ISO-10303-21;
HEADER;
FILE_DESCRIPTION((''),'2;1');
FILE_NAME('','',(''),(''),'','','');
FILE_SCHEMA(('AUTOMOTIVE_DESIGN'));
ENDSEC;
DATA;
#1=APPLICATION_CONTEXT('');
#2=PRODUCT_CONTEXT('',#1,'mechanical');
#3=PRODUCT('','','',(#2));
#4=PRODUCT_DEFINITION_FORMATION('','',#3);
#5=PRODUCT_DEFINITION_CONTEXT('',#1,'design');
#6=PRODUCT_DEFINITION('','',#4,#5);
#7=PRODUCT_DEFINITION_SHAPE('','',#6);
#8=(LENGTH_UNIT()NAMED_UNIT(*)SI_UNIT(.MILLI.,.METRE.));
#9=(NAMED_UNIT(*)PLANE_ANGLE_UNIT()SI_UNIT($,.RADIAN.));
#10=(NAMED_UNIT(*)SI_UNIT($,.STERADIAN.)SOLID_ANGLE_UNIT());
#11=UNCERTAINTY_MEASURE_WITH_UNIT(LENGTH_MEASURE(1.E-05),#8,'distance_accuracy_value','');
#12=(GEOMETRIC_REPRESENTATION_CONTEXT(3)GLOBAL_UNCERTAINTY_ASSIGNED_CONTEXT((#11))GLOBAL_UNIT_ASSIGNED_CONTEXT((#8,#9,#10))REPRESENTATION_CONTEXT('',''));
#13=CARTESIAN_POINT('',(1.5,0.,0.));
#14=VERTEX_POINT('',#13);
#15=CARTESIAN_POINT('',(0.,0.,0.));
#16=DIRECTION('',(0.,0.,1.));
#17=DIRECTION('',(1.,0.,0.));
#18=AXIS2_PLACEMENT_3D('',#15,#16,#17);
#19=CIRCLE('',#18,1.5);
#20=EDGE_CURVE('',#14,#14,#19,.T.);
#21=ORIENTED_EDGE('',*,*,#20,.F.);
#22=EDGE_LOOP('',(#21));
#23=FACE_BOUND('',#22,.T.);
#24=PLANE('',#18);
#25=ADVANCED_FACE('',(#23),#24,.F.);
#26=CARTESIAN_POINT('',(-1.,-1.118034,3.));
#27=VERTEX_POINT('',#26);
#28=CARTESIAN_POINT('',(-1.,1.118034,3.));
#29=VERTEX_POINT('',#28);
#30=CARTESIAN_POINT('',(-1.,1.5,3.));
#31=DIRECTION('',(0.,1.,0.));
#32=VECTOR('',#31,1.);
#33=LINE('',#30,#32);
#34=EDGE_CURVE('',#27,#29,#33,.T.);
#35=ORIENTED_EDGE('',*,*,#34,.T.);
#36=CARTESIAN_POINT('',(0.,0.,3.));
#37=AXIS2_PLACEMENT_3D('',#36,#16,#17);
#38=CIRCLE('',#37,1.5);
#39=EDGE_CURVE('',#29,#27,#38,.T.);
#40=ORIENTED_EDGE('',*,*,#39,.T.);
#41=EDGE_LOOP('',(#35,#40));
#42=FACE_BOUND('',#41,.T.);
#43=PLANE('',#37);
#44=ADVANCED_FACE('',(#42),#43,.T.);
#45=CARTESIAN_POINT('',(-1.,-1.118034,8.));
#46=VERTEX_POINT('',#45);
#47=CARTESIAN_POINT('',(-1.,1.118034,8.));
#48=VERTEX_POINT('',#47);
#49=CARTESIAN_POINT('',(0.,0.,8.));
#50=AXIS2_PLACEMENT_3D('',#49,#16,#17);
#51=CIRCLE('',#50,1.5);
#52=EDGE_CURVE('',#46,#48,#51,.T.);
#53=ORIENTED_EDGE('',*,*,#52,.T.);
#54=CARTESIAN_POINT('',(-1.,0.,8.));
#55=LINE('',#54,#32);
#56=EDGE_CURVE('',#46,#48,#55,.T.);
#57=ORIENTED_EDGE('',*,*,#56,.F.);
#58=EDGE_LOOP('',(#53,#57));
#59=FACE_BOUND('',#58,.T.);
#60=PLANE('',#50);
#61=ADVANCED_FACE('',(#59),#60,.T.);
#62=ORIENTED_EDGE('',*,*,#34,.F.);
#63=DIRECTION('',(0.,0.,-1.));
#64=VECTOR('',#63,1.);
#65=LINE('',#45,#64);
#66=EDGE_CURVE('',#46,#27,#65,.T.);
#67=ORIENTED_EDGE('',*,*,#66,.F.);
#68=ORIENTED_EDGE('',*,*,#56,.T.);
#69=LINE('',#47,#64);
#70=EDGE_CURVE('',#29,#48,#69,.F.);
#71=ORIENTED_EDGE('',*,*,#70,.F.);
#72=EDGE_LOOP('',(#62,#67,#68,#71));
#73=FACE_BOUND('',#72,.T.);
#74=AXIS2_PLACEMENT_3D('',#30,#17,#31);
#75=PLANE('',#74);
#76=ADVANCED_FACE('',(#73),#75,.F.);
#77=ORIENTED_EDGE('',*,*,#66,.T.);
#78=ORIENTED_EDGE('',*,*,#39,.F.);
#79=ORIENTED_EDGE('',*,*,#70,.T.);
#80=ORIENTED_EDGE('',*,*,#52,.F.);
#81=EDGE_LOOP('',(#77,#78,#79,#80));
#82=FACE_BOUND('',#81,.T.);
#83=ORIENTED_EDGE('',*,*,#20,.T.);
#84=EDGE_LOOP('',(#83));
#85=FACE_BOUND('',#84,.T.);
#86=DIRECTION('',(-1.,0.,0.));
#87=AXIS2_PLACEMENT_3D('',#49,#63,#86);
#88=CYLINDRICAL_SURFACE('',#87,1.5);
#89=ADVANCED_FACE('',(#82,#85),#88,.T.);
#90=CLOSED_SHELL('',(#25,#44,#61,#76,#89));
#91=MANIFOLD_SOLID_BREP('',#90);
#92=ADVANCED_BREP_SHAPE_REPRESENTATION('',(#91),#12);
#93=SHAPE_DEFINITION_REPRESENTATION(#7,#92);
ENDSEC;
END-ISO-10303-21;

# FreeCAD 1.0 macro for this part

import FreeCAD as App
import Part
import Sketcher

V = App.Vector

doc = App.newDocument("Part")
body = doc.addObject("PartDesign::Body", "Body")

# Sketch on XY plane
sketch1 = body.newObject("Sketcher::SketchObject", "Sketch")
sketch1.AttachmentSupport = (doc.getObject("XY_Plane"), [""])
sketch1.MapMode = "FlatFace"
sketch1.addGeometry(Part.Circle(V(0, 0, 0), V(0, 0, 1), 1.5), False)
sketch1.addConstraint(Sketcher.Constraint("Coincident", 0, 3, -1, 1))
sketch1.addConstraint(Sketcher.Constraint("Diameter", 0, 3.0))
pad1 = body.newObject("PartDesign::Pad", "Pad")
pad1.Profile = sketch1
pad1.Length = 8

# Sketch on XY plane
sketch2 = body.newObject("Sketcher::SketchObject", "Sketch001")
sketch2.AttachmentSupport = (doc.getObject("XY_Plane"), [""])
sketch2.MapMode = "FlatFace"
sketch2.AttachmentOffset = App.Placement(V(0, 0, 8), App.Rotation())
sketch2.addGeometry(Part.LineSegment(V(-1.6, 1.5, 0), V(-1.6, -1.5, 0)), False)
sketch2.addGeometry(Part.LineSegment(V(-1.6, -1.5, 0), V(-1, -1.5, 0)), False)
sketch2.addGeometry(Part.LineSegment(V(-1, -1.5, 0), V(-1, 1.5, 0)), False)
sketch2.addGeometry(Part.LineSegment(V(-1, 1.5, 0), V(-1.6, 1.5, 0)), False)
sketch2.addConstraint(Sketcher.Constraint("Coincident", 0, 2, 1, 1))
sketch2.addConstraint(Sketcher.Constraint("Coincident", 1, 2, 2, 1))
sketch2.addConstraint(Sketcher.Constraint("Coincident", 2, 2, 3, 1))
sketch2.addConstraint(Sketcher.Constraint("Coincident", 3, 2, 0, 1))
sketch2.addConstraint(Sketcher.Constraint("Vertical", 0))
sketch2.addConstraint(Sketcher.Constraint("Horizontal", 1))
sketch2.addConstraint(Sketcher.Constraint("Vertical", 2))
sketch2.addConstraint(Sketcher.Constraint("Horizontal", 3))
sketch2.addConstraint(Sketcher.Constraint("DistanceY", 0, 2, 0, 1, 3.0))
sketch2.addConstraint(Sketcher.Constraint("DistanceX", 1, 1, 1, 2, 0.6))
sketch2.addConstraint(Sketcher.Constraint("DistanceX", 1, 2, -1, 1, 1.0))
sketch2.addConstraint(Sketcher.Constraint("DistanceY", 0, 2, -1, 1, 1.5))
pocket1 = body.newObject("PartDesign::Pocket", "Pocket")
pocket1.Profile = sketch2
pocket1.Length = 5

doc.recompute()
